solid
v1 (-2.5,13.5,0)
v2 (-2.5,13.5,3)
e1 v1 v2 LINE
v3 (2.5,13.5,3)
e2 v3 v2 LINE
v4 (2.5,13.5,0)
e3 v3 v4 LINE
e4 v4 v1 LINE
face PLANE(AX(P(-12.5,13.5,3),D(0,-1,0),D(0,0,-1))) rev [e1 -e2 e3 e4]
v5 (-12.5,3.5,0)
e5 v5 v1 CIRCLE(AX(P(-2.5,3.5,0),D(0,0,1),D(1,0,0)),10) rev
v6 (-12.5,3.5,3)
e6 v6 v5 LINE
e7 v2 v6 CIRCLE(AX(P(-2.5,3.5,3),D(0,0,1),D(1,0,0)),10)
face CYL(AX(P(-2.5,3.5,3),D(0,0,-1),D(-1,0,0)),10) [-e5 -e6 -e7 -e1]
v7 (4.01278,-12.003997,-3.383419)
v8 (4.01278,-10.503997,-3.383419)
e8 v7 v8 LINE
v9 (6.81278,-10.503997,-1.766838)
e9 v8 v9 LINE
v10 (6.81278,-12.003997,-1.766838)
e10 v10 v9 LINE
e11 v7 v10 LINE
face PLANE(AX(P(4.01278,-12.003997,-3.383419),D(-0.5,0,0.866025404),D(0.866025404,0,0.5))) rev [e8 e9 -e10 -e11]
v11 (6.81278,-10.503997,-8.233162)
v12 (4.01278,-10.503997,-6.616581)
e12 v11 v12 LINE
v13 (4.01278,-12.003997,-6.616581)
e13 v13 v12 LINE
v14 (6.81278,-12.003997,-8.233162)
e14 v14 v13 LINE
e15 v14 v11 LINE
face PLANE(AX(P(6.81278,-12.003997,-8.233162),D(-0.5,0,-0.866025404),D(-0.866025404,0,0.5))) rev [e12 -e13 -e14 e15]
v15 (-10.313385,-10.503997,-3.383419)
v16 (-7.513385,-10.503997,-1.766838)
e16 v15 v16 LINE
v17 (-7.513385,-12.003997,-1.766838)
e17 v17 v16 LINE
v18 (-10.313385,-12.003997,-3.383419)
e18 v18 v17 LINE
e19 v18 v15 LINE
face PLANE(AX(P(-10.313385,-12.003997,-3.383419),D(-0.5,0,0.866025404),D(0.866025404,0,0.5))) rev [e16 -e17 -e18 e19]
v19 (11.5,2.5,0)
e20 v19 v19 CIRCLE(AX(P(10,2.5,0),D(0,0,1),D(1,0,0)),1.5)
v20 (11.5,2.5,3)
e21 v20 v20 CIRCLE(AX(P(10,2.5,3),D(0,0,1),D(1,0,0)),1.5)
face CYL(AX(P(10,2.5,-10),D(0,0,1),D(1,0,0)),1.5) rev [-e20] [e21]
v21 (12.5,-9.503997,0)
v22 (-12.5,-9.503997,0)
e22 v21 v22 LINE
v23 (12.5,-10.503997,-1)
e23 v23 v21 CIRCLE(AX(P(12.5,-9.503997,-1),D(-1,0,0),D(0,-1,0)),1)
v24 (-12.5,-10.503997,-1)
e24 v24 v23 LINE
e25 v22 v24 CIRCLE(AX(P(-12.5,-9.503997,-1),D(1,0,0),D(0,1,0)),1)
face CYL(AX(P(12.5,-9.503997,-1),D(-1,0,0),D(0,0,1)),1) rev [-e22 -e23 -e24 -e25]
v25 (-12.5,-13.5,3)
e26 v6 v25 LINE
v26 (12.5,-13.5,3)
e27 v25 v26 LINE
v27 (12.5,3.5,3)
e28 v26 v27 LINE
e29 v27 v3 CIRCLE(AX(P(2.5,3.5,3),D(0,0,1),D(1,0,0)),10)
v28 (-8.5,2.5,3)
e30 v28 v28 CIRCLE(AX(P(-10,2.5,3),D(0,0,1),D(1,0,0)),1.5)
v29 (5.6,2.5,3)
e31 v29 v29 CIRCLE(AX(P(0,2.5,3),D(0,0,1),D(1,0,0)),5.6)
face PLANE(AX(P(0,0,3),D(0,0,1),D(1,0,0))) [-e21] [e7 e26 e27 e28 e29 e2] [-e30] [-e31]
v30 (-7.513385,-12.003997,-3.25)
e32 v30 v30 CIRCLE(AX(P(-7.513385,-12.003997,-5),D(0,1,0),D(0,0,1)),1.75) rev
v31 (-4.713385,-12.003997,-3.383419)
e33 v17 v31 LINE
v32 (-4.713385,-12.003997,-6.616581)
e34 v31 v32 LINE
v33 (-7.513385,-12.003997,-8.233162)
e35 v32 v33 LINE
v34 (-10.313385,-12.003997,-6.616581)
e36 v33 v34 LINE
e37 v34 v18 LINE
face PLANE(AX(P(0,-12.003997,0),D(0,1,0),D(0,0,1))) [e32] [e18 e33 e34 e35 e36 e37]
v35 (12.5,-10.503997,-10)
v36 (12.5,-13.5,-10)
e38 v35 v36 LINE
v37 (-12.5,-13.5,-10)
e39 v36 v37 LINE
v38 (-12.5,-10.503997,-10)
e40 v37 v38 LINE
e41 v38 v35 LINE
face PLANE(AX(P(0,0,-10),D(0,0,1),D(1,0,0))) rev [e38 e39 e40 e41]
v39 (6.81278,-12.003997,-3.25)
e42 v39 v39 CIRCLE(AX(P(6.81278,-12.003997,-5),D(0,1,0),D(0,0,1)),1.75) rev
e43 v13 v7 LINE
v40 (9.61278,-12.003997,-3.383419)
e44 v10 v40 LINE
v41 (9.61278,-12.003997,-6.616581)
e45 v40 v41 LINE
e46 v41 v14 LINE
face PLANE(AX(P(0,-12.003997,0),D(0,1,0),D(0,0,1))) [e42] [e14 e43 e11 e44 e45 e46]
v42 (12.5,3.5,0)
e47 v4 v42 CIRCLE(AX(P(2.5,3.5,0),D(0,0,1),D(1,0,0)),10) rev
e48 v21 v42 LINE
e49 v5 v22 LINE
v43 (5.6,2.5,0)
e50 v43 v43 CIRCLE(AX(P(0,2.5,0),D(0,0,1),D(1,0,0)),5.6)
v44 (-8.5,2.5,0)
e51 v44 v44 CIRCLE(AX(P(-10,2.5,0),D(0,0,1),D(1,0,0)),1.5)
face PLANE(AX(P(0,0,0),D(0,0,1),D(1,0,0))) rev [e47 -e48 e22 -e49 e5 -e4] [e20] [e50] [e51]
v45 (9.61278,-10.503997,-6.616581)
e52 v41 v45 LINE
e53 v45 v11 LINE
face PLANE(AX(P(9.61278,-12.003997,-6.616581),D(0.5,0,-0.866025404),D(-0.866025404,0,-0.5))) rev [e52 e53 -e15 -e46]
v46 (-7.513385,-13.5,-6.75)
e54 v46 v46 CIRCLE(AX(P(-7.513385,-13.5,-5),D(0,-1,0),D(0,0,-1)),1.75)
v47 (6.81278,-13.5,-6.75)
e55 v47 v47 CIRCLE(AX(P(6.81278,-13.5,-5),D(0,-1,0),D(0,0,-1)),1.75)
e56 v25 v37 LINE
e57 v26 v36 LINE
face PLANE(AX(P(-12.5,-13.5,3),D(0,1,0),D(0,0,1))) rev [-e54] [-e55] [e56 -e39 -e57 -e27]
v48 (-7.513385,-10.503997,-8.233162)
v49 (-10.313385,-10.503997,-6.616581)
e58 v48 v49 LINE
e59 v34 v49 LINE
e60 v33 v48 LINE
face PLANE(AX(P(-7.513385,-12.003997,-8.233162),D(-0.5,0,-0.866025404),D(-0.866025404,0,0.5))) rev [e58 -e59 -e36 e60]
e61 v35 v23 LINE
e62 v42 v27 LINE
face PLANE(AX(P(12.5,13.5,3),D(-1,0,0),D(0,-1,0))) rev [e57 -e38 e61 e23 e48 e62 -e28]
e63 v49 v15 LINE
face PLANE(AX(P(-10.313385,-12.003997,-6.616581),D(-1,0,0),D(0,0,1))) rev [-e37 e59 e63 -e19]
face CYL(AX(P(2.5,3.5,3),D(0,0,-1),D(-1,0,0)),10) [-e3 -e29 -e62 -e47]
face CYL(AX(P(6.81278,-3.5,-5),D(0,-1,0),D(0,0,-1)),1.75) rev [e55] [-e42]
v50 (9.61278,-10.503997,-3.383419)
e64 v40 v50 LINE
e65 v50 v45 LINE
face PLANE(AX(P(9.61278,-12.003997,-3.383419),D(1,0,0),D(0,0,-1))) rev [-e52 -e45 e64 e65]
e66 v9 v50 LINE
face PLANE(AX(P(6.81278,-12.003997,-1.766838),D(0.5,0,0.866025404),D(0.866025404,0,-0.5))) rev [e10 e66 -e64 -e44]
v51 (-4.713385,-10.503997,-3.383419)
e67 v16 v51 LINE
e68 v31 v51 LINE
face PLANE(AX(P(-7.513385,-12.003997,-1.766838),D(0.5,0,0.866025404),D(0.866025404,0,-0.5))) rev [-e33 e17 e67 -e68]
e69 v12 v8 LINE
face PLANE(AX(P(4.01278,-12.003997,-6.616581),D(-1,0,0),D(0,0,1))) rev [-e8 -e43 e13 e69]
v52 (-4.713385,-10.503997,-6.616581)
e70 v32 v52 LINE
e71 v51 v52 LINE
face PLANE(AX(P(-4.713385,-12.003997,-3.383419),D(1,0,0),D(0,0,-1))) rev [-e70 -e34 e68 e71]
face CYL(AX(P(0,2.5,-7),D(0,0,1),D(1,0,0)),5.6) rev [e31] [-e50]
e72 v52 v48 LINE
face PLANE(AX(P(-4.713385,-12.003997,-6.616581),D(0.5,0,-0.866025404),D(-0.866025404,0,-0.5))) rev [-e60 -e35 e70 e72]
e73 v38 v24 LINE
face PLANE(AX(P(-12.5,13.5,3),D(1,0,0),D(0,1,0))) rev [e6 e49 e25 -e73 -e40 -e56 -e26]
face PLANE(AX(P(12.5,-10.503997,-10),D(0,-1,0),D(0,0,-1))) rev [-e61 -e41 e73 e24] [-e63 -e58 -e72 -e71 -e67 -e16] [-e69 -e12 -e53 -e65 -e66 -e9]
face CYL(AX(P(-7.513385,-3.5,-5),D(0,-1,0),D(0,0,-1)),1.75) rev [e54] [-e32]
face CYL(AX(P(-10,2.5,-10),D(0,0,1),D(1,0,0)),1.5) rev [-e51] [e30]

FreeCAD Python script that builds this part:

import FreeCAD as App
import Part
import Sketcher
from FreeCAD import Vector
Q = App.Units.Quantity


def edges_at(feature, points):
    """Names of the edges that pass closest to the given points."""
    edges = feature.Shape.Edges
    near = lambda p: min(range(len(edges)), key=lambda i: edges[i].distToShape(Part.Vertex(*p))[0])
    return sorted({f"Edge{near(p) + 1}" for p in points})

doc = App.newDocument("Part")
params = doc.addObject("Spreadsheet::Sheet", "Params")
for row, (alias, value) in enumerate([
    ("sketch1_width", "25 mm"),
    ("sketch1_height", "27 mm"),
    ("pad1_length", "3 mm"),
    ("sketch2_width", "25 mm"),
    ("pad2_length", "10 mm"),
    ("sketch3_diameter", "11.2 mm"),
    ("pocket1_length", "10 mm"),
    ("fillet_radius", "10 mm"),
    ("sketch4_diameter", "3.5 mm"),
    ("pocket2_length", "10 mm"),
    ("fillet2_radius", "1 mm"),
    ("pocket3_length", "1.5 mm"),
    ("sketch6_diameter", "3 mm"),
], start=1):
    params.set(f"A{row}", alias)
    params.set(f"B{row}", "=" + value)
    params.setAlias(f"B{row}", alias)

body = doc.addObject("PartDesign::Body", "Body")

# Sketch on XY plane
sketch1 = body.newObject("Sketcher::SketchObject", "Sketch")
sketch1.AttachmentSupport = (doc.getObject("XY_Plane"), [""])
sketch1.MapMode = "FlatFace"
sketch1.addGeometry([
    Part.LineSegment(Vector(-12, 14, 0), Vector(-12, -14, 0)),
    Part.LineSegment(Vector(-12, -14, 0), Vector(12, -14, 0)),
    Part.LineSegment(Vector(12, -14, 0), Vector(12, 14, 0)),
    Part.LineSegment(Vector(12, 14, 0), Vector(-12, 14, 0)),
], False)
sketch1.addConstraint([
    Sketcher.Constraint("Coincident", 0, 2, 1, 1),
    Sketcher.Constraint("Coincident", 1, 2, 2, 1),
    Sketcher.Constraint("Coincident", 2, 2, 3, 1),
    Sketcher.Constraint("Coincident", 3, 2, 0, 1),
    Sketcher.Constraint("Vertical", 0),
    Sketcher.Constraint("Horizontal", 1),
    Sketcher.Constraint("Vertical", 2),
    Sketcher.Constraint("Horizontal", 3),
    Sketcher.Constraint("Symmetric", 0, 2, 2, 2, -1, 1),
    Sketcher.Constraint("DistanceX", 1, 1, 1, 2, 25.0),
    Sketcher.Constraint("DistanceY", 0, 2, 0, 1, 27.0),
])
sketch1.setExpression("Constraints[9]", "Params.sketch1_width")
sketch1.setExpression("Constraints[10]", "Params.sketch1_height")
pad1 = body.newObject("PartDesign::Pad", "Pad")
pad1.Profile = sketch1
pad1.setExpression("Length", "Params.pad1_length")

# Sketch on XY plane
sketch2 = body.newObject("Sketcher::SketchObject", "Sketch001")
sketch2.AttachmentSupport = (doc.getObject("XY_Plane"), [""])
sketch2.MapMode = "FlatFace"
sketch2.addGeometry([
    Part.LineSegment(Vector(12.5, -10.5, 0), Vector(12.5, -13.5, 0)),
    Part.LineSegment(Vector(12.5, -13.5, 0), Vector(-12.5, -13.5, 0)),
    Part.LineSegment(Vector(-12.5, -13.5, 0), Vector(-12.5, -10.5, 0)),
    Part.LineSegment(Vector(-12.5, -10.5, 0), Vector(12.5, -10.5, 0)),
], False)
sketch2.addConstraint([
    Sketcher.Constraint("Coincident", 0, 2, 1, 1),
    Sketcher.Constraint("Coincident", 1, 2, 2, 1),
    Sketcher.Constraint("Coincident", 2, 2, 3, 1),
    Sketcher.Constraint("Coincident", 3, 2, 0, 1),
    Sketcher.Constraint("Vertical", 0),
    Sketcher.Constraint("Horizontal", 1),
    Sketcher.Constraint("Vertical", 2),
    Sketcher.Constraint("Horizontal", 3),
    Sketcher.Constraint("DistanceX", 1, 2, 1, 1, 25.0),
    Sketcher.Constraint("DistanceX", -1, 1, 0, 2, 12.5),
    Sketcher.Constraint("DistanceY", 0, 2, -1, 1, 13.5),
    Sketcher.Constraint("DistanceY", 0, 2, 0, 1, 2.996003),
])
sketch2.setExpression("Constraints[8]", "Params.sketch2_width")
pad2 = body.newObject("PartDesign::Pad", "Pad001")
pad2.Profile = sketch2
pad2.setExpression("Length", "Params.pad2_length")
pad2.Reversed = True

# Sketch on XY plane
sketch3 = body.newObject("Sketcher::SketchObject", "Sketch002")
sketch3.AttachmentSupport = (doc.getObject("XY_Plane"), [""])
sketch3.MapMode = "FlatFace"
sketch3.AttachmentOffset = App.Placement(Vector(0, 0, 3), App.Rotation())
sketch3.addGeometry(Part.Circle(Vector(0, 2, 0), Vector(0, 0, 1), 6), False)
sketch3.addConstraint([
    Sketcher.Constraint("PointOnObject", 0, 3, -2),
    Sketcher.Constraint("Diameter", 0, 11.2),
    Sketcher.Constraint("DistanceY", -1, 1, 0, 3, 2.5),
])
sketch3.setExpression("Constraints[1]", "Params.sketch3_diameter")
pocket1 = body.newObject("PartDesign::Pocket", "Pocket")
pocket1.Profile = sketch3
pocket1.setExpression("Length", "Params.pocket1_length")
doc.recompute()

fillet = body.newObject("PartDesign::Fillet", "Fillet")
fillet.Base = (pocket1, edges_at(pocket1, [(-12.5, 13.5, 1.5), (12.5, 13.5, 1.5)]))
fillet.setExpression("Radius", "Params.fillet_radius")

# Sketch on XZ plane
sketch4 = body.newObject("Sketcher::SketchObject", "Sketch003")
sketch4.AttachmentSupport = (doc.getObject("XZ_Plane"), [""])
sketch4.MapMode = "FlatFace"
sketch4.AttachmentOffset = App.Placement(Vector(0, 0, 13.5), App.Rotation())
sketch4.addGeometry([
    Part.Circle(Vector(-7.5, -5, 0), Vector(0, 0, 1), 1.8),
    Part.Circle(Vector(6.8, -5, 0), Vector(0, 0, 1), 1.8),
], False)
sketch4.addConstraint([
    Sketcher.Constraint("Equal", 0, 1),
    Sketcher.Constraint("Horizontal", 0, 3, 1, 3),
    Sketcher.Constraint("Diameter", 0, 3.5),
    Sketcher.Constraint("DistanceY", 0, 3, -1, 1, 5.0),
    Sketcher.Constraint("DistanceX", -1, 1, 1, 3, 6.81278),
    Sketcher.Constraint("DistanceX", 0, 3, -1, 1, 7.513385),
])
sketch4.setExpression("Constraints[2]", "Params.sketch4_diameter")
pocket2 = body.newObject("PartDesign::Pocket", "Pocket001")
pocket2.Profile = sketch4
pocket2.setExpression("Length", "Params.pocket2_length")
doc.recompute()

fillet2 = body.newObject("PartDesign::Fillet", "Fillet001")
fillet2.Base = (pocket2, edges_at(pocket2, [(0, -10.504, 0)]))
fillet2.setExpression("Radius", "Params.fillet2_radius")

# Sketch on XZ plane
sketch5 = body.newObject("Sketcher::SketchObject", "Sketch004")
sketch5.AttachmentSupport = (doc.getObject("XZ_Plane"), [""])
sketch5.MapMode = "FlatFace"
sketch5.AttachmentOffset = App.Placement(Vector(0, 0, 10.503997), App.Rotation())
sketch5.addGeometry([
    Part.LineSegment(Vector(9.6, -3.4, 0), Vector(9.6, -6.6, 0)),  # 0
    Part.LineSegment(Vector(9.6, -6.6, 0), Vector(6.8, -8.2, 0)),  # 1
    Part.LineSegment(Vector(6.8, -8.2, 0), Vector(4, -6.6, 0)),  # 2
    Part.LineSegment(Vector(4, -6.6, 0), Vector(4, -3.4, 0)),  # 3
    Part.LineSegment(Vector(4, -3.4, 0), Vector(6.8, -1.8, 0)),  # 4
    Part.LineSegment(Vector(6.8, -1.8, 0), Vector(9.6, -3.4, 0)),  # 5
    Part.LineSegment(Vector(-4.7, -3.4, 0), Vector(-4.7, -6.6, 0)),  # 6
    Part.LineSegment(Vector(-4.7, -6.6, 0), Vector(-7.5, -8.2, 0)),  # 7
    Part.LineSegment(Vector(-7.5, -8.2, 0), Vector(-10.3, -6.6, 0)),  # 8
    Part.LineSegment(Vector(-10.3, -6.6, 0), Vector(-10.3, -3.4, 0)),  # 9
    Part.LineSegment(Vector(-10.3, -3.4, 0), Vector(-7.5, -1.8, 0)),  # 10
    Part.LineSegment(Vector(-7.5, -1.8, 0), Vector(-4.7, -3.4, 0)),  # 11
], False)
sketch5.addConstraint([
    Sketcher.Constraint("Coincident", 0, 2, 1, 1),
    Sketcher.Constraint("Coincident", 1, 2, 2, 1),
    Sketcher.Constraint("Coincident", 2, 2, 3, 1),
    Sketcher.Constraint("Coincident", 3, 2, 4, 1),
    Sketcher.Constraint("Coincident", 4, 2, 5, 1),
    Sketcher.Constraint("Coincident", 5, 2, 0, 1),
    Sketcher.Constraint("Coincident", 6, 2, 7, 1),
    Sketcher.Constraint("Coincident", 7, 2, 8, 1),
    Sketcher.Constraint("Coincident", 8, 2, 9, 1),
    Sketcher.Constraint("Coincident", 9, 2, 10, 1),
    Sketcher.Constraint("Coincident", 10, 2, 11, 1),
    Sketcher.Constraint("Coincident", 11, 2, 6, 1),
    Sketcher.Constraint("Vertical", 0),
    Sketcher.Constraint("Vertical", 3),
    Sketcher.Constraint("Vertical", 6),
    Sketcher.Constraint("Vertical", 9),
    Sketcher.Constraint("Parallel", 1, 4),
    Sketcher.Constraint("Parallel", 2, 5),
    Sketcher.Constraint("Parallel", 4, 7),
    Sketcher.Constraint("Parallel", 5, 8),
    Sketcher.Constraint("Parallel", 7, 10),
    Sketcher.Constraint("Parallel", 8, 11),
    Sketcher.Constraint("Horizontal", 0, 2, 2, 2),
    Sketcher.Constraint("Horizontal", 3, 2, 5, 2),
    Sketcher.Constraint("Horizontal", 2, 2, 6, 2),
    Sketcher.Constraint("Horizontal", 1, 2, 7, 2),
    Sketcher.Constraint("Horizontal", 6, 2, 8, 2),
    Sketcher.Constraint("Horizontal", 5, 2, 9, 2),
    Sketcher.Constraint("Horizontal", 4, 2, 10, 2),
    Sketcher.Constraint("Vertical", 1, 2, 4, 2),
    Sketcher.Constraint("Angle", 1, Q("-150 deg")),
    Sketcher.Constraint("DistanceX", 1, 2, 0, 2, 2.8),
    Sketcher.Constraint("DistanceY", 0, 2, 0, 1, 3.233162),
    Sketcher.Constraint("DistanceX", -1, 1, 0, 2, 9.61278),
    Sketcher.Constraint("DistanceY", 0, 2, -1, 1, 6.616581),
    Sketcher.Constraint("DistanceX", 6, 2, -1, 1, 4.713385),
])
pocket3 = body.newObject("PartDesign::Pocket", "Pocket002")
pocket3.Profile = sketch5
pocket3.setExpression("Length", "Params.pocket3_length")
pocket3.Reversed = True

# Sketch on XY plane
sketch6 = body.newObject("Sketcher::SketchObject", "Sketch005")
sketch6.AttachmentSupport = (doc.getObject("XY_Plane"), [""])
sketch6.MapMode = "FlatFace"
sketch6.AttachmentOffset = App.Placement(Vector(0, 0, 3), App.Rotation())
sketch6.addGeometry([
    Part.Circle(Vector(-10, 2.5, 0), Vector(0, 0, 1), 1.5),
    Part.Circle(Vector(10, 2.5, 0), Vector(0, 0, 1), 1.5),
], False)
sketch6.addConstraint([
    Sketcher.Constraint("Equal", 0, 1),
    Sketcher.Constraint("Symmetric", 0, 3, 1, 3, -2),
    Sketcher.Constraint("Diameter", 0, 3.0),
    Sketcher.Constraint("DistanceX", 0, 3, -1, 1, 10.0),
    Sketcher.Constraint("DistanceY", -1, 1, 0, 3, 2.5),
])
sketch6.setExpression("Constraints[2]", "Params.sketch6_diameter")
pocket4 = body.newObject("PartDesign::Pocket", "Pocket003")
pocket4.Profile = sketch6
pocket4.Type = "ThroughAll"

doc.recompute()
